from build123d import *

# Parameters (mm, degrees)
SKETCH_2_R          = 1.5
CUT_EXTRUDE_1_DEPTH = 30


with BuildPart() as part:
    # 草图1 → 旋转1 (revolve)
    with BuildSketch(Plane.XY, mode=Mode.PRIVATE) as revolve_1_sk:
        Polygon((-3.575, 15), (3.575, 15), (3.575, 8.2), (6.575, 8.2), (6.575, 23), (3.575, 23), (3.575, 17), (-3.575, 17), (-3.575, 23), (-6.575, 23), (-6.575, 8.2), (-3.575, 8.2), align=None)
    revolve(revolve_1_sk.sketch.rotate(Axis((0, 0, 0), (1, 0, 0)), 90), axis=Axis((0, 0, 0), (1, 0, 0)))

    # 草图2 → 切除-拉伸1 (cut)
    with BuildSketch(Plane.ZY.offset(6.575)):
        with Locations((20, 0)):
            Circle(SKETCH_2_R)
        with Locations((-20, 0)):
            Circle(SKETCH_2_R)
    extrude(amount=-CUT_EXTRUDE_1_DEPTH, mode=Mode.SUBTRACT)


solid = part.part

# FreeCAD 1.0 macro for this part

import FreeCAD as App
import Part
import Sketcher

V = App.Vector

doc = App.newDocument("Part")
body = doc.addObject("PartDesign::Body", "Body")

# Sketch on XY plane
sketch1 = body.newObject("Sketcher::SketchObject", "Sketch")
sketch1.AttachmentSupport = (doc.getObject("XY_Plane"), [""])
sketch1.MapMode = "FlatFace"
sketch1.addGeometry(Part.LineSegment(V(-3.6, 15, 0), V(3.6, 15, 0)), False)
sketch1.addGeometry(Part.LineSegment(V(3.6, 15, 0), V(3.6, 8.2, 0)), False)
sketch1.addGeometry(Part.LineSegment(V(3.6, 8.2, 0), V(6.6, 8.2, 0)), False)
sketch1.addGeometry(Part.LineSegment(V(6.6, 8.2, 0), V(6.6, 23, 0)), False)
sketch1.addGeometry(Part.LineSegment(V(6.6, 23, 0), V(3.6, 23, 0)), False)
sketch1.addGeometry(Part.LineSegment(V(3.6, 23, 0), V(3.6, 17, 0)), False)
sketch1.addGeometry(Part.LineSegment(V(3.6, 17, 0), V(-3.6, 17, 0)), False)
sketch1.addGeometry(Part.LineSegment(V(-3.6, 17, 0), V(-3.6, 23, 0)), False)
sketch1.addGeometry(Part.LineSegment(V(-3.6, 23, 0), V(-6.6, 23, 0)), False)
sketch1.addGeometry(Part.LineSegment(V(-6.6, 23, 0), V(-6.6, 8.2, 0)), False)
sketch1.addGeometry(Part.LineSegment(V(-6.6, 8.2, 0), V(-3.6, 8.2, 0)), False)
sketch1.addGeometry(Part.LineSegment(V(-3.6, 8.2, 0), V(-3.6, 15, 0)), False)
sketch1.addConstraint(Sketcher.Constraint("Coincident", 0, 2, 1, 1))
sketch1.addConstraint(Sketcher.Constraint("Coincident", 1, 2, 2, 1))
sketch1.addConstraint(Sketcher.Constraint("Coincident", 2, 2, 3, 1))
sketch1.addConstraint(Sketcher.Constraint("Coincident", 3, 2, 4, 1))
sketch1.addConstraint(Sketcher.Constraint("Coincident", 4, 2, 5, 1))
sketch1.addConstraint(Sketcher.Constraint("Coincident", 5, 2, 6, 1))
sketch1.addConstraint(Sketcher.Constraint("Coincident", 6, 2, 7, 1))
sketch1.addConstraint(Sketcher.Constraint("Coincident", 7, 2, 8, 1))
sketch1.addConstraint(Sketcher.Constraint("Coincident", 8, 2, 9, 1))
sketch1.addConstraint(Sketcher.Constraint("Coincident", 9, 2, 10, 1))
sketch1.addConstraint(Sketcher.Constraint("Coincident", 10, 2, 11, 1))
sketch1.addConstraint(Sketcher.Constraint("Coincident", 11, 2, 0, 1))
sketch1.addConstraint(Sketcher.Constraint("Horizontal", 0))
sketch1.addConstraint(Sketcher.Constraint("Vertical", 1))
sketch1.addConstraint(Sketcher.Constraint("Horizontal", 2))
sketch1.addConstraint(Sketcher.Constraint("Vertical", 3))
sketch1.addConstraint(Sketcher.Constraint("Horizontal", 4))
sketch1.addConstraint(Sketcher.Constraint("Vertical", 5))
sketch1.addConstraint(Sketcher.Constraint("Horizontal", 6))
sketch1.addConstraint(Sketcher.Constraint("Vertical", 7))
sketch1.addConstraint(Sketcher.Constraint("Horizontal", 8))
sketch1.addConstraint(Sketcher.Constraint("Vertical", 9))
sketch1.addConstraint(Sketcher.Constraint("Horizontal", 10))
sketch1.addConstraint(Sketcher.Constraint("Vertical", 11))
sketch1.addConstraint(Sketcher.Constraint("Symmetric", 4, 2, 7, 2, -2))
sketch1.addConstraint(Sketcher.Constraint("Symmetric", 2, 2, 9, 2, -2))
sketch1.addConstraint(Sketcher.Constraint("Vertical", 1, 2, 4, 2))
sketch1.addConstraint(Sketcher.Constraint("Vertical", 7, 2, 10, 2))
sketch1.addConstraint(Sketcher.Constraint("DistanceX", 2, 1, 2, 2, 3.0))
sketch1.addConstraint(Sketcher.Constraint("DistanceY", 5, 2, 5, 1, 6.0))
sketch1.addConstraint(Sketcher.Constraint("DistanceY", 1, 2, 1, 1, 6.8))
sketch1.addConstraint(Sketcher.Constraint("DistanceY", 3, 1, 3, 2, 14.8))
sketch1.addConstraint(Sketcher.Constraint("DistanceY", -1, 1, 0, 2, 15.0))
sketch1.addConstraint(Sketcher.Constraint("DistanceX", 0, 1, 0, 2, 7.15))
revolution = body.newObject("PartDesign::Revolution", "Revolution")
revolution.Profile = sketch1
revolution.ReferenceAxis = (sketch1, ["H_Axis"])
revolution.Angle = 360

# Sketch on YZ plane
sketch2 = body.newObject("Sketcher::SketchObject", "Sketch001")
sketch2.AttachmentSupport = (doc.getObject("YZ_Plane"), [""])
sketch2.MapMode = "FlatFace"
sketch2.AttachmentOffset = App.Placement(V(0, 0, -6.575), App.Rotation())
sketch2.addGeometry(Part.Circle(V(0, 20, 0), V(0, 0, 1), 1.5), False)
sketch2.addGeometry(Part.Circle(V(0, -20, 0), V(0, 0, 1), 1.5), False)
sketch2.addConstraint(Sketcher.Constraint("Equal", 0, 1))
sketch2.addConstraint(Sketcher.Constraint("Symmetric", 0, 3, 1, 3, -1, 1))
sketch2.addConstraint(Sketcher.Constraint("PointOnObject", 0, 3, -2))
sketch2.addConstraint(Sketcher.Constraint("Diameter", 0, 3.0))
sketch2.addConstraint(Sketcher.Constraint("DistanceY", -1, 1, 0, 3, 20.0))
pocket1 = body.newObject("PartDesign::Pocket", "Pocket")
pocket1.Profile = sketch2
pocket1.Length = 30
pocket1.Reversed = True

doc.recompute()
